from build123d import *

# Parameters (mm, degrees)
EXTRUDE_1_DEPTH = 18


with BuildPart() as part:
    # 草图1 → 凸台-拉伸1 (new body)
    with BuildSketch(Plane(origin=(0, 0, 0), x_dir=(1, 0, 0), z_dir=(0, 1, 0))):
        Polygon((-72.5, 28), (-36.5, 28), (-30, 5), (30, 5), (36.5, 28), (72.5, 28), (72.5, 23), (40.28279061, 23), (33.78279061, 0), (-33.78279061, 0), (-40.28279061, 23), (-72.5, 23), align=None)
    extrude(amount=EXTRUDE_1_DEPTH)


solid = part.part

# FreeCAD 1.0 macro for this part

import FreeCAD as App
import Part
import Sketcher

doc = App.newDocument("Part")
body = doc.addObject("PartDesign::Body", "Body")

# Sketch on XZ plane
sketch1 = body.newObject("Sketcher::SketchObject", "Sketch")
sketch1.AttachmentSupport = (doc.getObject("XZ_Plane"), [""])
sketch1.MapMode = "FlatFace"
sketch1.addGeometry([
    Part.LineSegment(App.Vector(-36, -28, 0), App.Vector(-72, -28, 0)),  # 0
    Part.LineSegment(App.Vector(-72, -28, 0), App.Vector(-72, -23, 0)),  # 1
    Part.LineSegment(App.Vector(-72, -23, 0), App.Vector(-40, -23, 0)),  # 2
    Part.LineSegment(App.Vector(-40, -23, 0), App.Vector(-34, 0, 0)),  # 3
    Part.LineSegment(App.Vector(-34, 0, 0), App.Vector(34, 0, 0)),  # 4
    Part.LineSegment(App.Vector(34, 0, 0), App.Vector(40, -23, 0)),  # 5
    Part.LineSegment(App.Vector(40, -23, 0), App.Vector(72, -23, 0)),  # 6
    Part.LineSegment(App.Vector(72, -23, 0), App.Vector(72, -28, 0)),  # 7
    Part.LineSegment(App.Vector(72, -28, 0), App.Vector(36, -28, 0)),  # 8
    Part.LineSegment(App.Vector(36, -28, 0), App.Vector(30, -5, 0)),  # 9
    Part.LineSegment(App.Vector(30, -5, 0), App.Vector(-30, -5, 0)),  # 10
    Part.LineSegment(App.Vector(-30, -5, 0), App.Vector(-36, -28, 0)),  # 11
], False)
sketch1.addConstraint([
    Sketcher.Constraint("Coincident", 0, 2, 1, 1),
    Sketcher.Constraint("Coincident", 1, 2, 2, 1),
    Sketcher.Constraint("Coincident", 2, 2, 3, 1),
    Sketcher.Constraint("Coincident", 3, 2, 4, 1),
    Sketcher.Constraint("Coincident", 4, 2, 5, 1),
    Sketcher.Constraint("Coincident", 5, 2, 6, 1),
    Sketcher.Constraint("Coincident", 6, 2, 7, 1),
    Sketcher.Constraint("Coincident", 7, 2, 8, 1),
    Sketcher.Constraint("Coincident", 8, 2, 9, 1),
    Sketcher.Constraint("Coincident", 9, 2, 10, 1),
    Sketcher.Constraint("Coincident", 10, 2, 11, 1),
    Sketcher.Constraint("Coincident", 11, 2, 0, 1),
    Sketcher.Constraint("Horizontal", 0),
    Sketcher.Constraint("Vertical", 1),
    Sketcher.Constraint("Horizontal", 2),
    Sketcher.Constraint("Horizontal", 4),
    Sketcher.Constraint("Horizontal", 6),
    Sketcher.Constraint("Vertical", 7),
    Sketcher.Constraint("Horizontal", 8),
    Sketcher.Constraint("Horizontal", 10),
    Sketcher.Constraint("Symmetric", 3, 2, 4, 2, -1, 1),
    Sketcher.Constraint("Symmetric", 2, 2, 5, 2, -2),
    Sketcher.Constraint("Symmetric", 0, 2, 7, 2, -2),
    Sketcher.Constraint("Parallel", 5, 9),
    Sketcher.Constraint("Parallel", 3, 11),
    Sketcher.Constraint("Equal", 0, 8),
    Sketcher.Constraint("Equal", 5, 9),
    Sketcher.Constraint("DistanceX", 0, 2, 0, 1, 36.0),
    Sketcher.Constraint("DistanceX", 10, 2, 10, 1, 60.0),
    Sketcher.Constraint("DistanceY", 1, 1, 1, 2, 5.0),
    Sketcher.Constraint("DistanceY", 0, 2, -1, 1, 28.0),
    Sketcher.Constraint("DistanceX", 1, 2, 6, 2, 145.0),
    Sketcher.Constraint("DistanceX", 2, 1, 2, 2, 32.217209),
])
pad1 = body.newObject("PartDesign::Pad", "Pad")
pad1.Profile = sketch1
pad1.Length = 18
pad1.Reversed = True

doc.recompute()
